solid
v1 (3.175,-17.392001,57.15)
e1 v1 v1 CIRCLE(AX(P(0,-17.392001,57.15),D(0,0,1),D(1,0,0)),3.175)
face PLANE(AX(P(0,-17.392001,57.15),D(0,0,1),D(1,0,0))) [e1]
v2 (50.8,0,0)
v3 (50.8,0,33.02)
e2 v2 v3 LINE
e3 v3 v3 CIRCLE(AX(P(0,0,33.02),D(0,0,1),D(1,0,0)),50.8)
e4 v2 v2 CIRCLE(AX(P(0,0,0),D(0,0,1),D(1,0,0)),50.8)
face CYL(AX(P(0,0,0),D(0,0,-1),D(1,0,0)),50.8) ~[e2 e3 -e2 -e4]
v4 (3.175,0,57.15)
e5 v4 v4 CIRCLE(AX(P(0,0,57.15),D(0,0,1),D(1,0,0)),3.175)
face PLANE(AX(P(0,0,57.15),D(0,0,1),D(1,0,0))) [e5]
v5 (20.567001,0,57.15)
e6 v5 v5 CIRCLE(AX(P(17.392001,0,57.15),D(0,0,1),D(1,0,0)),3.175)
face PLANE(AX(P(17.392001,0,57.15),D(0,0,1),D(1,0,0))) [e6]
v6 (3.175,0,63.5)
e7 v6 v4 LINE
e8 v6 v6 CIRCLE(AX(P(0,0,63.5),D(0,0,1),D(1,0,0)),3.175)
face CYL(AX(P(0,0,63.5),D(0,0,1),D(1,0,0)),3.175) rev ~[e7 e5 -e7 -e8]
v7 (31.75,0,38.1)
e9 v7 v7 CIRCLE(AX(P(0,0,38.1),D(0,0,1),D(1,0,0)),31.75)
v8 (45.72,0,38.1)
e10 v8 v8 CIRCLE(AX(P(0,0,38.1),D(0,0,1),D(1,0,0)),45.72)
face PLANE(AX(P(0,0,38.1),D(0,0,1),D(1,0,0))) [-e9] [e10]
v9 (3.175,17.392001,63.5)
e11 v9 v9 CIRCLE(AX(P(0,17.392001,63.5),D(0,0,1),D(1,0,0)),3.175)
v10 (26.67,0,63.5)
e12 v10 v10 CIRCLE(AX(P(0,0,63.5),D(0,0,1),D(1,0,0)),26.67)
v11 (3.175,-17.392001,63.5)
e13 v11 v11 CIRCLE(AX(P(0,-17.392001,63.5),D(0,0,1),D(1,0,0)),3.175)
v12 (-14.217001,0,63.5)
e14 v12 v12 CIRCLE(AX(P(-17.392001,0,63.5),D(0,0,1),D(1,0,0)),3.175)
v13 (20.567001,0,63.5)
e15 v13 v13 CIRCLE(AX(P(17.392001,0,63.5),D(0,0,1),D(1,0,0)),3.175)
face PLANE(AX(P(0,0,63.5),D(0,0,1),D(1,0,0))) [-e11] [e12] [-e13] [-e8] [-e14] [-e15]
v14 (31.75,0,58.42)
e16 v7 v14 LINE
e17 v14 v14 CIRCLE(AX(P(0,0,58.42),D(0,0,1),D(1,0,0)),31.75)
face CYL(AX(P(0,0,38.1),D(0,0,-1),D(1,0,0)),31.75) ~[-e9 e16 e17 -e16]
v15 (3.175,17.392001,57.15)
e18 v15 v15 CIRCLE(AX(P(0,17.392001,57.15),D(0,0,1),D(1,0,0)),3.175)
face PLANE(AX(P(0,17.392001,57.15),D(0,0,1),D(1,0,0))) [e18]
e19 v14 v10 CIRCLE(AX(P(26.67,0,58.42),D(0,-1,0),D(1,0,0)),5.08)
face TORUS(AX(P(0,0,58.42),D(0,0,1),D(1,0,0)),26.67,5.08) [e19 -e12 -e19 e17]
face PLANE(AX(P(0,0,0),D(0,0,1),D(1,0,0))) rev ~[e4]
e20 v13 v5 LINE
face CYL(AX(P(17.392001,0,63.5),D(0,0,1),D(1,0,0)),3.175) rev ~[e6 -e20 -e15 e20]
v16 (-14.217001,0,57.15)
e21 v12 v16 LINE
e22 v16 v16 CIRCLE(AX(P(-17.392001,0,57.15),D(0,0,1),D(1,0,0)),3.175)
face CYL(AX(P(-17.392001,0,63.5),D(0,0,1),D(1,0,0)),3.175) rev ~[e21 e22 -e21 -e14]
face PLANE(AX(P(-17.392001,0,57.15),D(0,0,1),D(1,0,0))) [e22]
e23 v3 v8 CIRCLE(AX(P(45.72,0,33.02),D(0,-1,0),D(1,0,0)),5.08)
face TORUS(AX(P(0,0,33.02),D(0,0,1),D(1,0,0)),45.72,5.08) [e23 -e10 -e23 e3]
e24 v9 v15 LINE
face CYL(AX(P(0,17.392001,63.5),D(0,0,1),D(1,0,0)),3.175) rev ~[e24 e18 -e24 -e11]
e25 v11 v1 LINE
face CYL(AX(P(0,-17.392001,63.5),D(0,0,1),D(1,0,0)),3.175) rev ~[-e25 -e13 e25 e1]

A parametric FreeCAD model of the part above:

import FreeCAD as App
import Part
import Sketcher

V = App.Vector
Q = App.Units.Quantity


def edges_at(feature, points):
    """Names of the edges that pass closest to the given points."""
    edges = feature.Shape.Edges
    near = lambda p: min(range(len(edges)), key=lambda i: edges[i].distToShape(Part.Vertex(*p))[0])
    return sorted({f"Edge{near(p) + 1}" for p in points})

doc = App.newDocument("Part")
body = doc.addObject("PartDesign::Body", "Body")

# Sketch on XY plane
sketch1 = body.newObject("Sketcher::SketchObject", "Sketch")
sketch1.AttachmentSupport = (doc.getObject("XY_Plane"), [""])
sketch1.MapMode = "FlatFace"
sketch1.addGeometry(Part.Circle(V(0, 0, 0), V(0, 0, 1), 51), False)
sketch1.addConstraint(Sketcher.Constraint("Coincident", 0, 3, -1, 1))
sketch1.addConstraint(Sketcher.Constraint("Diameter", 0, Q("4 in")))
pad1 = body.newObject("PartDesign::Pad", "Pad")
pad1.Profile = sketch1
pad1.Length = Q("1.5 in")

# Sketch on XY plane
sketch2 = body.newObject("Sketcher::SketchObject", "Sketch001")
sketch2.AttachmentSupport = (doc.getObject("XY_Plane"), [""])
sketch2.MapMode = "FlatFace"
sketch2.AttachmentOffset = App.Placement(V(0, 0, 1.5 * 25.4), App.Rotation())
sketch2.addGeometry(Part.Circle(V(0, 0, 0), V(0, 0, 1), 32), False)
sketch2.addConstraint(Sketcher.Constraint("Coincident", 0, 3, -1, 1))
sketch2.addConstraint(Sketcher.Constraint("Diameter", 0, Q("2.5 in")))
pad2 = body.newObject("PartDesign::Pad", "Pad001")
pad2.Profile = sketch2
pad2.Length = Q("1 in")

# Sketch on XY plane
sketch3 = body.newObject("Sketcher::SketchObject", "Sketch002")
sketch3.AttachmentSupport = (doc.getObject("XY_Plane"), [""])
sketch3.MapMode = "FlatFace"
sketch3.AttachmentOffset = App.Placement(V(0, 0, 2.5 * 25.4), App.Rotation())
sketch3.addGeometry(Part.Circle(V(-17.4, 0, 0), V(0, 0, 1), 3.2), False)
sketch3.addGeometry(Part.Circle(V(0, -17.4, 0), V(0, 0, 1), 3.2), False)
sketch3.addGeometry(Part.Circle(V(17.4, 0, 0), V(0, 0, 1), 3.2), False)
sketch3.addGeometry(Part.Circle(V(0, 17.4, 0), V(0, 0, 1), 3.2), False)
sketch3.addGeometry(Part.Circle(V(0, 0, 0), V(0, 0, 1), 3.2), False)
sketch3.addConstraint(Sketcher.Constraint("Coincident", 4, 3, -1, 1))
sketch3.addConstraint(Sketcher.Constraint("Equal", 0, 1))
sketch3.addConstraint(Sketcher.Constraint("Equal", 1, 2))
sketch3.addConstraint(Sketcher.Constraint("Equal", 2, 3))
sketch3.addConstraint(Sketcher.Constraint("Equal", 3, 4))
sketch3.addConstraint(Sketcher.Constraint("Symmetric", 0, 3, 2, 3, -1, 1))
sketch3.addConstraint(Sketcher.Constraint("Symmetric", 1, 3, 3, 3, -1, 1))
sketch3.addConstraint(Sketcher.Constraint("PointOnObject", 0, 3, -1))
sketch3.addConstraint(Sketcher.Constraint("PointOnObject", 1, 3, -2))
sketch3.addConstraint(Sketcher.Constraint("Diameter", 0, Q("0.25 in")))
sketch3.addConstraint(Sketcher.Constraint("DistanceX", 0, 3, -1, 1, 17.392001))
sketch3.addConstraint(Sketcher.Constraint("DistanceY", 1, 3, -1, 1, 17.392001))
pocket1 = body.newObject("PartDesign::Pocket", "Pocket")
pocket1.Profile = sketch3
pocket1.Length = Q("0.25 in")
doc.recompute()

fillet = body.newObject("PartDesign::Fillet", "Fillet")
fillet.Base = (pocket1, edges_at(pocket1, [(-31.75, 0, 63.5), (-50.8, 0, 38.1)]))
fillet.Radius = Q("0.2 in")

doc.recompute()
